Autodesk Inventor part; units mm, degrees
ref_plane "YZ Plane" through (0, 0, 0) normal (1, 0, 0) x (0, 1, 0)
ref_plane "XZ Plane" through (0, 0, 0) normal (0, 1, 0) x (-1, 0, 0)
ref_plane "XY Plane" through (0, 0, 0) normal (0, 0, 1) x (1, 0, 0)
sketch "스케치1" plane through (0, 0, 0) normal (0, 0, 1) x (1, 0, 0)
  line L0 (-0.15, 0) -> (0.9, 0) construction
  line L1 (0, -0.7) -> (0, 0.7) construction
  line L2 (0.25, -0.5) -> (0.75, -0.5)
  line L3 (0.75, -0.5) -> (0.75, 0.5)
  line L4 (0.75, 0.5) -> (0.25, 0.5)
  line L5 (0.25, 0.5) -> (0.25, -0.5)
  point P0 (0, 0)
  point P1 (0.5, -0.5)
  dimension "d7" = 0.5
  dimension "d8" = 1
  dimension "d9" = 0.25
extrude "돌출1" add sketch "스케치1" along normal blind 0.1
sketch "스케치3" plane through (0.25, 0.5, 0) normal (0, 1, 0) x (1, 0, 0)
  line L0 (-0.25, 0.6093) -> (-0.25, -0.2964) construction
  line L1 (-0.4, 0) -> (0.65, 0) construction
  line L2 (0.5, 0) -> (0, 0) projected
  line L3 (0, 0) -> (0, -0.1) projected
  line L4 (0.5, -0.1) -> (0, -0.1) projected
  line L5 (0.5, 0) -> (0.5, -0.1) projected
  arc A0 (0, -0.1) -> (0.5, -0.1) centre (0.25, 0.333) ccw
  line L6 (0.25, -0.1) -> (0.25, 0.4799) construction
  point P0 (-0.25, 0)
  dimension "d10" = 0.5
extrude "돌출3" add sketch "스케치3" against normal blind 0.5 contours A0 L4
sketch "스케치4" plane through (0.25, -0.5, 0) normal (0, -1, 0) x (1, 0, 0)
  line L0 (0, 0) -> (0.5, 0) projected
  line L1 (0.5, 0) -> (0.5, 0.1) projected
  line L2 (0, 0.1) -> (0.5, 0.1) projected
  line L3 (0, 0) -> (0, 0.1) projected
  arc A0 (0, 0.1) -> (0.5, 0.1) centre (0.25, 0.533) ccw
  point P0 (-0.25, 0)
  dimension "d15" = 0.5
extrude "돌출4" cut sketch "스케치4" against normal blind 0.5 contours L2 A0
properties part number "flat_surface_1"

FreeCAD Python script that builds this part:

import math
import FreeCAD as App
import Part
import Sketcher

doc = App.newDocument("Part")
body = doc.addObject("PartDesign::Body", "Body")

# Sketch on XY plane
sketch1 = body.newObject("Sketcher::SketchObject", "Sketch")
sketch1.AttachmentSupport = (doc.getObject("XY_Plane"), [""])
sketch1.MapMode = "FlatFace"
sketch1.addGeometry(Part.LineSegment(App.Vector(0.25, 0.5, 0), App.Vector(0.25, -0.5, 0)), False)
sketch1.addGeometry(Part.LineSegment(App.Vector(0.25, -0.5, 0), App.Vector(0.75, -0.5, 0)), False)
sketch1.addGeometry(Part.LineSegment(App.Vector(0.75, -0.5, 0), App.Vector(0.75, 0.5, 0)), False)
sketch1.addGeometry(Part.LineSegment(App.Vector(0.75, 0.5, 0), App.Vector(0.25, 0.5, 0)), False)
sketch1.addConstraint(Sketcher.Constraint("Coincident", 0, 2, 1, 1))
sketch1.addConstraint(Sketcher.Constraint("Coincident", 1, 2, 2, 1))
sketch1.addConstraint(Sketcher.Constraint("Coincident", 2, 2, 3, 1))
sketch1.addConstraint(Sketcher.Constraint("Coincident", 3, 2, 0, 1))
sketch1.addConstraint(Sketcher.Constraint("Vertical", 0))
sketch1.addConstraint(Sketcher.Constraint("Horizontal", 1))
sketch1.addConstraint(Sketcher.Constraint("Vertical", 2))
sketch1.addConstraint(Sketcher.Constraint("Horizontal", 3))
sketch1.addConstraint(Sketcher.Constraint("DistanceY", 0, 2, 0, 1, 1.0))
sketch1.addConstraint(Sketcher.Constraint("DistanceX", 1, 1, 1, 2, 0.5))
sketch1.addConstraint(Sketcher.Constraint("DistanceY", 0, 2, -1, 1, 0.5))
sketch1.addConstraint(Sketcher.Constraint("DistanceX", -1, 1, 0, 2, 0.25))
pad1 = body.newObject("PartDesign::Pad", "Pad")
pad1.Profile = sketch1
pad1.Length = 0.1

# Sketch on XZ plane
sketch2 = body.newObject("Sketcher::SketchObject", "Sketch001")
sketch2.AttachmentSupport = (doc.getObject("XZ_Plane"), [""])
sketch2.MapMode = "FlatFace"
sketch2.AttachmentOffset = App.Placement(App.Vector(0, 0, -0.5), App.Rotation())
sketch2.addGeometry(Part.ArcOfCircle(Part.Circle(App.Vector(0.5, -0.333, 0), App.Vector(0, 0, 1), 0.499989), math.radians(59.999272), math.radians(120.000728)), False)
sketch2.addGeometry(Part.LineSegment(App.Vector(0.75, 0.1, 0), App.Vector(0.25, 0.1, 0)), False)
sketch2.addConstraint(Sketcher.Constraint("Coincident", 0, 1, 1, 1))
sketch2.addConstraint(Sketcher.Constraint("Coincident", 1, 2, 0, 2))
sketch2.addConstraint(Sketcher.Constraint("Horizontal", 1))
sketch2.addConstraint(Sketcher.Constraint("Radius", 0, 0.5))
sketch2.addConstraint(Sketcher.Constraint("DistanceX", 1, 2, 1, 1, 0.5))
sketch2.addConstraint(Sketcher.Constraint("DistanceX", -1, 1, 0, 3, 0.5))
sketch2.addConstraint(Sketcher.Constraint("DistanceY", -1, 1, 0, 1, 0.1))
pad2 = body.newObject("PartDesign::Pad", "Pad001")
pad2.Profile = sketch2
pad2.Length = 0.5

# Sketch on XZ plane
sketch3 = body.newObject("Sketcher::SketchObject", "Sketch002")
sketch3.AttachmentSupport = (doc.getObject("XZ_Plane"), [""])
sketch3.MapMode = "FlatFace"
sketch3.AttachmentOffset = App.Placement(App.Vector(0, 0, 0.5), App.Rotation())
sketch3.addGeometry(Part.LineSegment(App.Vector(0.75, 0.1, 0), App.Vector(0.25, 0.1, 0)), False)
sketch3.addGeometry(Part.ArcOfCircle(Part.Circle(App.Vector(0.5, 0.533, 0), App.Vector(0, 0, 1), 0.499989), math.radians(-120.000728), math.radians(-59.999272)), False)
sketch3.addConstraint(Sketcher.Constraint("Coincident", 0, 1, 1, 2))
sketch3.addConstraint(Sketcher.Constraint("Coincident", 1, 1, 0, 2))
sketch3.addConstraint(Sketcher.Constraint("Horizontal", 0))
sketch3.addConstraint(Sketcher.Constraint("Radius", 1, 0.5))
sketch3.addConstraint(Sketcher.Constraint("DistanceX", 0, 2, 0, 1, 0.5))
sketch3.addConstraint(Sketcher.Constraint("DistanceX", -1, 1, 1, 3, 0.5))
sketch3.addConstraint(Sketcher.Constraint("DistanceY", -1, 1, 0, 1, 0.1))
pocket1 = body.newObject("PartDesign::Pocket", "Pocket")
pocket1.Profile = sketch3
pocket1.Length = 0.5

doc.recompute()
